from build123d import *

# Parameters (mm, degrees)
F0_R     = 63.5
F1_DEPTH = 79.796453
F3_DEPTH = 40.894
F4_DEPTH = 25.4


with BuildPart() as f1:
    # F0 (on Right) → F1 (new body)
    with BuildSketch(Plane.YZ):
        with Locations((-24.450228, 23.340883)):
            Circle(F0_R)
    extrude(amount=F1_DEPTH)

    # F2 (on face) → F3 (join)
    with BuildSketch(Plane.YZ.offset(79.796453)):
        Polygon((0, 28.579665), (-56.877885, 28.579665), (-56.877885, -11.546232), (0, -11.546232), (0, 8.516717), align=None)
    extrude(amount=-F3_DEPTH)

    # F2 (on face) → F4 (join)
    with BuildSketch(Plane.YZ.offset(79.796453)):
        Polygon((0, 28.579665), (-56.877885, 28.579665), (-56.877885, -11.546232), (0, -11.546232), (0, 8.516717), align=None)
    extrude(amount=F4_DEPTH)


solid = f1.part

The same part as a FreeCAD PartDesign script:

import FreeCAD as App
import Part
import Sketcher

V = App.Vector
Q = App.Units.Quantity


def add_polygon(sketch, points):
    """Adds a closed chain of lines whose ends are joined by coincident constraints."""
    first, n = sketch.GeometryCount, len(points)
    for a, b in zip(points, points[1:] + points[:1]):
        sketch.addGeometry(Part.LineSegment(App.Vector(*a, 0), App.Vector(*b, 0)), False)
    for i in range(n):
        sketch.addConstraint(Sketcher.Constraint("Coincident", first + i, 2, first + (i + 1) % n, 1))

doc = App.newDocument("Part")
params = doc.addObject("Spreadsheet::Sheet", "Params")
for row, (alias, value) in enumerate([
    ("sketch1_diameter", "5 in"),
    ("pad1_length", "79.796453 mm"),
    ("pad2_length", "1.61 in"),
    ("pad3_length", "1 in"),
], start=1):
    params.set(f"A{row}", alias)
    params.set(f"B{row}", "=" + value)
    params.setAlias(f"B{row}", alias)

body = doc.addObject("PartDesign::Body", "Body")

# Sketch on YZ plane
sketch1 = body.newObject("Sketcher::SketchObject", "Sketch")
sketch1.AttachmentSupport = (doc.getObject("YZ_Plane"), [""])
sketch1.MapMode = "FlatFace"
sketch1.addGeometry(Part.Circle(V(-24, 23, 0), V(0, 0, 1), 64), False)
sketch1.addConstraint([
    Sketcher.Constraint("Diameter", 0, Q("5 in")),
    Sketcher.Constraint("DistanceX", 0, 3, -1, 1, Q("24.450228 mm")),
    Sketcher.Constraint("DistanceY", -1, 1, 0, 3, Q("23.340883 mm")),
])
sketch1.setExpression("Constraints[0]", "Params.sketch1_diameter")
pad1 = body.newObject("PartDesign::Pad", "Pad")
pad1.Profile = sketch1
pad1.setExpression("Length", "Params.pad1_length")

# Sketch on YZ plane
sketch2 = body.newObject("Sketcher::SketchObject", "Sketch001")
sketch2.AttachmentSupport = (doc.getObject("YZ_Plane"), [""])
sketch2.MapMode = "FlatFace"
sketch2.AttachmentOffset = App.Placement(V(0, 0, 79.796453), App.Rotation())
add_polygon(sketch2, [(0, 29), (-57, 29), (-57, -12), (0, -12)])  # lines 0-3
sketch2.addConstraint([
    Sketcher.Constraint("Horizontal", 0),
    Sketcher.Constraint("Vertical", 1),
    Sketcher.Constraint("Horizontal", 2),
    Sketcher.Constraint("Vertical", 3),
    Sketcher.Constraint("PointOnObject", 2, 2, -2),
    Sketcher.Constraint("DistanceX", 0, 2, 0, 1, Q("56.877885 mm")),
    Sketcher.Constraint("DistanceY", 1, 2, 1, 1, Q("40.125897 mm")),
    Sketcher.Constraint("DistanceY", -1, 1, 0, 2, Q("28.579665 mm")),
])
pad2 = body.newObject("PartDesign::Pad", "Pad001")
pad2.Profile = sketch2
pad2.setExpression("Length", "Params.pad2_length")
pad2.Reversed = True

# Sketch on YZ plane
sketch3 = body.newObject("Sketcher::SketchObject", "Sketch002")
sketch3.AttachmentSupport = (doc.getObject("YZ_Plane"), [""])
sketch3.MapMode = "FlatFace"
sketch3.AttachmentOffset = App.Placement(V(0, 0, 79.796453), App.Rotation())
add_polygon(sketch3, [(0, 29), (-57, 29), (-57, -12), (0, -12)])  # lines 0-3
sketch3.addConstraint([
    Sketcher.Constraint("Horizontal", 0),
    Sketcher.Constraint("Vertical", 1),
    Sketcher.Constraint("Horizontal", 2),
    Sketcher.Constraint("Vertical", 3),
    Sketcher.Constraint("PointOnObject", 2, 2, -2),
    Sketcher.Constraint("DistanceX", 0, 2, 0, 1, Q("56.877885 mm")),
    Sketcher.Constraint("DistanceY", 1, 2, 1, 1, Q("40.125897 mm")),
    Sketcher.Constraint("DistanceY", -1, 1, 0, 2, Q("28.579665 mm")),
])
pad3 = body.newObject("PartDesign::Pad", "Pad002")
pad3.Profile = sketch3
pad3.setExpression("Length", "Params.pad3_length")

doc.recompute()
